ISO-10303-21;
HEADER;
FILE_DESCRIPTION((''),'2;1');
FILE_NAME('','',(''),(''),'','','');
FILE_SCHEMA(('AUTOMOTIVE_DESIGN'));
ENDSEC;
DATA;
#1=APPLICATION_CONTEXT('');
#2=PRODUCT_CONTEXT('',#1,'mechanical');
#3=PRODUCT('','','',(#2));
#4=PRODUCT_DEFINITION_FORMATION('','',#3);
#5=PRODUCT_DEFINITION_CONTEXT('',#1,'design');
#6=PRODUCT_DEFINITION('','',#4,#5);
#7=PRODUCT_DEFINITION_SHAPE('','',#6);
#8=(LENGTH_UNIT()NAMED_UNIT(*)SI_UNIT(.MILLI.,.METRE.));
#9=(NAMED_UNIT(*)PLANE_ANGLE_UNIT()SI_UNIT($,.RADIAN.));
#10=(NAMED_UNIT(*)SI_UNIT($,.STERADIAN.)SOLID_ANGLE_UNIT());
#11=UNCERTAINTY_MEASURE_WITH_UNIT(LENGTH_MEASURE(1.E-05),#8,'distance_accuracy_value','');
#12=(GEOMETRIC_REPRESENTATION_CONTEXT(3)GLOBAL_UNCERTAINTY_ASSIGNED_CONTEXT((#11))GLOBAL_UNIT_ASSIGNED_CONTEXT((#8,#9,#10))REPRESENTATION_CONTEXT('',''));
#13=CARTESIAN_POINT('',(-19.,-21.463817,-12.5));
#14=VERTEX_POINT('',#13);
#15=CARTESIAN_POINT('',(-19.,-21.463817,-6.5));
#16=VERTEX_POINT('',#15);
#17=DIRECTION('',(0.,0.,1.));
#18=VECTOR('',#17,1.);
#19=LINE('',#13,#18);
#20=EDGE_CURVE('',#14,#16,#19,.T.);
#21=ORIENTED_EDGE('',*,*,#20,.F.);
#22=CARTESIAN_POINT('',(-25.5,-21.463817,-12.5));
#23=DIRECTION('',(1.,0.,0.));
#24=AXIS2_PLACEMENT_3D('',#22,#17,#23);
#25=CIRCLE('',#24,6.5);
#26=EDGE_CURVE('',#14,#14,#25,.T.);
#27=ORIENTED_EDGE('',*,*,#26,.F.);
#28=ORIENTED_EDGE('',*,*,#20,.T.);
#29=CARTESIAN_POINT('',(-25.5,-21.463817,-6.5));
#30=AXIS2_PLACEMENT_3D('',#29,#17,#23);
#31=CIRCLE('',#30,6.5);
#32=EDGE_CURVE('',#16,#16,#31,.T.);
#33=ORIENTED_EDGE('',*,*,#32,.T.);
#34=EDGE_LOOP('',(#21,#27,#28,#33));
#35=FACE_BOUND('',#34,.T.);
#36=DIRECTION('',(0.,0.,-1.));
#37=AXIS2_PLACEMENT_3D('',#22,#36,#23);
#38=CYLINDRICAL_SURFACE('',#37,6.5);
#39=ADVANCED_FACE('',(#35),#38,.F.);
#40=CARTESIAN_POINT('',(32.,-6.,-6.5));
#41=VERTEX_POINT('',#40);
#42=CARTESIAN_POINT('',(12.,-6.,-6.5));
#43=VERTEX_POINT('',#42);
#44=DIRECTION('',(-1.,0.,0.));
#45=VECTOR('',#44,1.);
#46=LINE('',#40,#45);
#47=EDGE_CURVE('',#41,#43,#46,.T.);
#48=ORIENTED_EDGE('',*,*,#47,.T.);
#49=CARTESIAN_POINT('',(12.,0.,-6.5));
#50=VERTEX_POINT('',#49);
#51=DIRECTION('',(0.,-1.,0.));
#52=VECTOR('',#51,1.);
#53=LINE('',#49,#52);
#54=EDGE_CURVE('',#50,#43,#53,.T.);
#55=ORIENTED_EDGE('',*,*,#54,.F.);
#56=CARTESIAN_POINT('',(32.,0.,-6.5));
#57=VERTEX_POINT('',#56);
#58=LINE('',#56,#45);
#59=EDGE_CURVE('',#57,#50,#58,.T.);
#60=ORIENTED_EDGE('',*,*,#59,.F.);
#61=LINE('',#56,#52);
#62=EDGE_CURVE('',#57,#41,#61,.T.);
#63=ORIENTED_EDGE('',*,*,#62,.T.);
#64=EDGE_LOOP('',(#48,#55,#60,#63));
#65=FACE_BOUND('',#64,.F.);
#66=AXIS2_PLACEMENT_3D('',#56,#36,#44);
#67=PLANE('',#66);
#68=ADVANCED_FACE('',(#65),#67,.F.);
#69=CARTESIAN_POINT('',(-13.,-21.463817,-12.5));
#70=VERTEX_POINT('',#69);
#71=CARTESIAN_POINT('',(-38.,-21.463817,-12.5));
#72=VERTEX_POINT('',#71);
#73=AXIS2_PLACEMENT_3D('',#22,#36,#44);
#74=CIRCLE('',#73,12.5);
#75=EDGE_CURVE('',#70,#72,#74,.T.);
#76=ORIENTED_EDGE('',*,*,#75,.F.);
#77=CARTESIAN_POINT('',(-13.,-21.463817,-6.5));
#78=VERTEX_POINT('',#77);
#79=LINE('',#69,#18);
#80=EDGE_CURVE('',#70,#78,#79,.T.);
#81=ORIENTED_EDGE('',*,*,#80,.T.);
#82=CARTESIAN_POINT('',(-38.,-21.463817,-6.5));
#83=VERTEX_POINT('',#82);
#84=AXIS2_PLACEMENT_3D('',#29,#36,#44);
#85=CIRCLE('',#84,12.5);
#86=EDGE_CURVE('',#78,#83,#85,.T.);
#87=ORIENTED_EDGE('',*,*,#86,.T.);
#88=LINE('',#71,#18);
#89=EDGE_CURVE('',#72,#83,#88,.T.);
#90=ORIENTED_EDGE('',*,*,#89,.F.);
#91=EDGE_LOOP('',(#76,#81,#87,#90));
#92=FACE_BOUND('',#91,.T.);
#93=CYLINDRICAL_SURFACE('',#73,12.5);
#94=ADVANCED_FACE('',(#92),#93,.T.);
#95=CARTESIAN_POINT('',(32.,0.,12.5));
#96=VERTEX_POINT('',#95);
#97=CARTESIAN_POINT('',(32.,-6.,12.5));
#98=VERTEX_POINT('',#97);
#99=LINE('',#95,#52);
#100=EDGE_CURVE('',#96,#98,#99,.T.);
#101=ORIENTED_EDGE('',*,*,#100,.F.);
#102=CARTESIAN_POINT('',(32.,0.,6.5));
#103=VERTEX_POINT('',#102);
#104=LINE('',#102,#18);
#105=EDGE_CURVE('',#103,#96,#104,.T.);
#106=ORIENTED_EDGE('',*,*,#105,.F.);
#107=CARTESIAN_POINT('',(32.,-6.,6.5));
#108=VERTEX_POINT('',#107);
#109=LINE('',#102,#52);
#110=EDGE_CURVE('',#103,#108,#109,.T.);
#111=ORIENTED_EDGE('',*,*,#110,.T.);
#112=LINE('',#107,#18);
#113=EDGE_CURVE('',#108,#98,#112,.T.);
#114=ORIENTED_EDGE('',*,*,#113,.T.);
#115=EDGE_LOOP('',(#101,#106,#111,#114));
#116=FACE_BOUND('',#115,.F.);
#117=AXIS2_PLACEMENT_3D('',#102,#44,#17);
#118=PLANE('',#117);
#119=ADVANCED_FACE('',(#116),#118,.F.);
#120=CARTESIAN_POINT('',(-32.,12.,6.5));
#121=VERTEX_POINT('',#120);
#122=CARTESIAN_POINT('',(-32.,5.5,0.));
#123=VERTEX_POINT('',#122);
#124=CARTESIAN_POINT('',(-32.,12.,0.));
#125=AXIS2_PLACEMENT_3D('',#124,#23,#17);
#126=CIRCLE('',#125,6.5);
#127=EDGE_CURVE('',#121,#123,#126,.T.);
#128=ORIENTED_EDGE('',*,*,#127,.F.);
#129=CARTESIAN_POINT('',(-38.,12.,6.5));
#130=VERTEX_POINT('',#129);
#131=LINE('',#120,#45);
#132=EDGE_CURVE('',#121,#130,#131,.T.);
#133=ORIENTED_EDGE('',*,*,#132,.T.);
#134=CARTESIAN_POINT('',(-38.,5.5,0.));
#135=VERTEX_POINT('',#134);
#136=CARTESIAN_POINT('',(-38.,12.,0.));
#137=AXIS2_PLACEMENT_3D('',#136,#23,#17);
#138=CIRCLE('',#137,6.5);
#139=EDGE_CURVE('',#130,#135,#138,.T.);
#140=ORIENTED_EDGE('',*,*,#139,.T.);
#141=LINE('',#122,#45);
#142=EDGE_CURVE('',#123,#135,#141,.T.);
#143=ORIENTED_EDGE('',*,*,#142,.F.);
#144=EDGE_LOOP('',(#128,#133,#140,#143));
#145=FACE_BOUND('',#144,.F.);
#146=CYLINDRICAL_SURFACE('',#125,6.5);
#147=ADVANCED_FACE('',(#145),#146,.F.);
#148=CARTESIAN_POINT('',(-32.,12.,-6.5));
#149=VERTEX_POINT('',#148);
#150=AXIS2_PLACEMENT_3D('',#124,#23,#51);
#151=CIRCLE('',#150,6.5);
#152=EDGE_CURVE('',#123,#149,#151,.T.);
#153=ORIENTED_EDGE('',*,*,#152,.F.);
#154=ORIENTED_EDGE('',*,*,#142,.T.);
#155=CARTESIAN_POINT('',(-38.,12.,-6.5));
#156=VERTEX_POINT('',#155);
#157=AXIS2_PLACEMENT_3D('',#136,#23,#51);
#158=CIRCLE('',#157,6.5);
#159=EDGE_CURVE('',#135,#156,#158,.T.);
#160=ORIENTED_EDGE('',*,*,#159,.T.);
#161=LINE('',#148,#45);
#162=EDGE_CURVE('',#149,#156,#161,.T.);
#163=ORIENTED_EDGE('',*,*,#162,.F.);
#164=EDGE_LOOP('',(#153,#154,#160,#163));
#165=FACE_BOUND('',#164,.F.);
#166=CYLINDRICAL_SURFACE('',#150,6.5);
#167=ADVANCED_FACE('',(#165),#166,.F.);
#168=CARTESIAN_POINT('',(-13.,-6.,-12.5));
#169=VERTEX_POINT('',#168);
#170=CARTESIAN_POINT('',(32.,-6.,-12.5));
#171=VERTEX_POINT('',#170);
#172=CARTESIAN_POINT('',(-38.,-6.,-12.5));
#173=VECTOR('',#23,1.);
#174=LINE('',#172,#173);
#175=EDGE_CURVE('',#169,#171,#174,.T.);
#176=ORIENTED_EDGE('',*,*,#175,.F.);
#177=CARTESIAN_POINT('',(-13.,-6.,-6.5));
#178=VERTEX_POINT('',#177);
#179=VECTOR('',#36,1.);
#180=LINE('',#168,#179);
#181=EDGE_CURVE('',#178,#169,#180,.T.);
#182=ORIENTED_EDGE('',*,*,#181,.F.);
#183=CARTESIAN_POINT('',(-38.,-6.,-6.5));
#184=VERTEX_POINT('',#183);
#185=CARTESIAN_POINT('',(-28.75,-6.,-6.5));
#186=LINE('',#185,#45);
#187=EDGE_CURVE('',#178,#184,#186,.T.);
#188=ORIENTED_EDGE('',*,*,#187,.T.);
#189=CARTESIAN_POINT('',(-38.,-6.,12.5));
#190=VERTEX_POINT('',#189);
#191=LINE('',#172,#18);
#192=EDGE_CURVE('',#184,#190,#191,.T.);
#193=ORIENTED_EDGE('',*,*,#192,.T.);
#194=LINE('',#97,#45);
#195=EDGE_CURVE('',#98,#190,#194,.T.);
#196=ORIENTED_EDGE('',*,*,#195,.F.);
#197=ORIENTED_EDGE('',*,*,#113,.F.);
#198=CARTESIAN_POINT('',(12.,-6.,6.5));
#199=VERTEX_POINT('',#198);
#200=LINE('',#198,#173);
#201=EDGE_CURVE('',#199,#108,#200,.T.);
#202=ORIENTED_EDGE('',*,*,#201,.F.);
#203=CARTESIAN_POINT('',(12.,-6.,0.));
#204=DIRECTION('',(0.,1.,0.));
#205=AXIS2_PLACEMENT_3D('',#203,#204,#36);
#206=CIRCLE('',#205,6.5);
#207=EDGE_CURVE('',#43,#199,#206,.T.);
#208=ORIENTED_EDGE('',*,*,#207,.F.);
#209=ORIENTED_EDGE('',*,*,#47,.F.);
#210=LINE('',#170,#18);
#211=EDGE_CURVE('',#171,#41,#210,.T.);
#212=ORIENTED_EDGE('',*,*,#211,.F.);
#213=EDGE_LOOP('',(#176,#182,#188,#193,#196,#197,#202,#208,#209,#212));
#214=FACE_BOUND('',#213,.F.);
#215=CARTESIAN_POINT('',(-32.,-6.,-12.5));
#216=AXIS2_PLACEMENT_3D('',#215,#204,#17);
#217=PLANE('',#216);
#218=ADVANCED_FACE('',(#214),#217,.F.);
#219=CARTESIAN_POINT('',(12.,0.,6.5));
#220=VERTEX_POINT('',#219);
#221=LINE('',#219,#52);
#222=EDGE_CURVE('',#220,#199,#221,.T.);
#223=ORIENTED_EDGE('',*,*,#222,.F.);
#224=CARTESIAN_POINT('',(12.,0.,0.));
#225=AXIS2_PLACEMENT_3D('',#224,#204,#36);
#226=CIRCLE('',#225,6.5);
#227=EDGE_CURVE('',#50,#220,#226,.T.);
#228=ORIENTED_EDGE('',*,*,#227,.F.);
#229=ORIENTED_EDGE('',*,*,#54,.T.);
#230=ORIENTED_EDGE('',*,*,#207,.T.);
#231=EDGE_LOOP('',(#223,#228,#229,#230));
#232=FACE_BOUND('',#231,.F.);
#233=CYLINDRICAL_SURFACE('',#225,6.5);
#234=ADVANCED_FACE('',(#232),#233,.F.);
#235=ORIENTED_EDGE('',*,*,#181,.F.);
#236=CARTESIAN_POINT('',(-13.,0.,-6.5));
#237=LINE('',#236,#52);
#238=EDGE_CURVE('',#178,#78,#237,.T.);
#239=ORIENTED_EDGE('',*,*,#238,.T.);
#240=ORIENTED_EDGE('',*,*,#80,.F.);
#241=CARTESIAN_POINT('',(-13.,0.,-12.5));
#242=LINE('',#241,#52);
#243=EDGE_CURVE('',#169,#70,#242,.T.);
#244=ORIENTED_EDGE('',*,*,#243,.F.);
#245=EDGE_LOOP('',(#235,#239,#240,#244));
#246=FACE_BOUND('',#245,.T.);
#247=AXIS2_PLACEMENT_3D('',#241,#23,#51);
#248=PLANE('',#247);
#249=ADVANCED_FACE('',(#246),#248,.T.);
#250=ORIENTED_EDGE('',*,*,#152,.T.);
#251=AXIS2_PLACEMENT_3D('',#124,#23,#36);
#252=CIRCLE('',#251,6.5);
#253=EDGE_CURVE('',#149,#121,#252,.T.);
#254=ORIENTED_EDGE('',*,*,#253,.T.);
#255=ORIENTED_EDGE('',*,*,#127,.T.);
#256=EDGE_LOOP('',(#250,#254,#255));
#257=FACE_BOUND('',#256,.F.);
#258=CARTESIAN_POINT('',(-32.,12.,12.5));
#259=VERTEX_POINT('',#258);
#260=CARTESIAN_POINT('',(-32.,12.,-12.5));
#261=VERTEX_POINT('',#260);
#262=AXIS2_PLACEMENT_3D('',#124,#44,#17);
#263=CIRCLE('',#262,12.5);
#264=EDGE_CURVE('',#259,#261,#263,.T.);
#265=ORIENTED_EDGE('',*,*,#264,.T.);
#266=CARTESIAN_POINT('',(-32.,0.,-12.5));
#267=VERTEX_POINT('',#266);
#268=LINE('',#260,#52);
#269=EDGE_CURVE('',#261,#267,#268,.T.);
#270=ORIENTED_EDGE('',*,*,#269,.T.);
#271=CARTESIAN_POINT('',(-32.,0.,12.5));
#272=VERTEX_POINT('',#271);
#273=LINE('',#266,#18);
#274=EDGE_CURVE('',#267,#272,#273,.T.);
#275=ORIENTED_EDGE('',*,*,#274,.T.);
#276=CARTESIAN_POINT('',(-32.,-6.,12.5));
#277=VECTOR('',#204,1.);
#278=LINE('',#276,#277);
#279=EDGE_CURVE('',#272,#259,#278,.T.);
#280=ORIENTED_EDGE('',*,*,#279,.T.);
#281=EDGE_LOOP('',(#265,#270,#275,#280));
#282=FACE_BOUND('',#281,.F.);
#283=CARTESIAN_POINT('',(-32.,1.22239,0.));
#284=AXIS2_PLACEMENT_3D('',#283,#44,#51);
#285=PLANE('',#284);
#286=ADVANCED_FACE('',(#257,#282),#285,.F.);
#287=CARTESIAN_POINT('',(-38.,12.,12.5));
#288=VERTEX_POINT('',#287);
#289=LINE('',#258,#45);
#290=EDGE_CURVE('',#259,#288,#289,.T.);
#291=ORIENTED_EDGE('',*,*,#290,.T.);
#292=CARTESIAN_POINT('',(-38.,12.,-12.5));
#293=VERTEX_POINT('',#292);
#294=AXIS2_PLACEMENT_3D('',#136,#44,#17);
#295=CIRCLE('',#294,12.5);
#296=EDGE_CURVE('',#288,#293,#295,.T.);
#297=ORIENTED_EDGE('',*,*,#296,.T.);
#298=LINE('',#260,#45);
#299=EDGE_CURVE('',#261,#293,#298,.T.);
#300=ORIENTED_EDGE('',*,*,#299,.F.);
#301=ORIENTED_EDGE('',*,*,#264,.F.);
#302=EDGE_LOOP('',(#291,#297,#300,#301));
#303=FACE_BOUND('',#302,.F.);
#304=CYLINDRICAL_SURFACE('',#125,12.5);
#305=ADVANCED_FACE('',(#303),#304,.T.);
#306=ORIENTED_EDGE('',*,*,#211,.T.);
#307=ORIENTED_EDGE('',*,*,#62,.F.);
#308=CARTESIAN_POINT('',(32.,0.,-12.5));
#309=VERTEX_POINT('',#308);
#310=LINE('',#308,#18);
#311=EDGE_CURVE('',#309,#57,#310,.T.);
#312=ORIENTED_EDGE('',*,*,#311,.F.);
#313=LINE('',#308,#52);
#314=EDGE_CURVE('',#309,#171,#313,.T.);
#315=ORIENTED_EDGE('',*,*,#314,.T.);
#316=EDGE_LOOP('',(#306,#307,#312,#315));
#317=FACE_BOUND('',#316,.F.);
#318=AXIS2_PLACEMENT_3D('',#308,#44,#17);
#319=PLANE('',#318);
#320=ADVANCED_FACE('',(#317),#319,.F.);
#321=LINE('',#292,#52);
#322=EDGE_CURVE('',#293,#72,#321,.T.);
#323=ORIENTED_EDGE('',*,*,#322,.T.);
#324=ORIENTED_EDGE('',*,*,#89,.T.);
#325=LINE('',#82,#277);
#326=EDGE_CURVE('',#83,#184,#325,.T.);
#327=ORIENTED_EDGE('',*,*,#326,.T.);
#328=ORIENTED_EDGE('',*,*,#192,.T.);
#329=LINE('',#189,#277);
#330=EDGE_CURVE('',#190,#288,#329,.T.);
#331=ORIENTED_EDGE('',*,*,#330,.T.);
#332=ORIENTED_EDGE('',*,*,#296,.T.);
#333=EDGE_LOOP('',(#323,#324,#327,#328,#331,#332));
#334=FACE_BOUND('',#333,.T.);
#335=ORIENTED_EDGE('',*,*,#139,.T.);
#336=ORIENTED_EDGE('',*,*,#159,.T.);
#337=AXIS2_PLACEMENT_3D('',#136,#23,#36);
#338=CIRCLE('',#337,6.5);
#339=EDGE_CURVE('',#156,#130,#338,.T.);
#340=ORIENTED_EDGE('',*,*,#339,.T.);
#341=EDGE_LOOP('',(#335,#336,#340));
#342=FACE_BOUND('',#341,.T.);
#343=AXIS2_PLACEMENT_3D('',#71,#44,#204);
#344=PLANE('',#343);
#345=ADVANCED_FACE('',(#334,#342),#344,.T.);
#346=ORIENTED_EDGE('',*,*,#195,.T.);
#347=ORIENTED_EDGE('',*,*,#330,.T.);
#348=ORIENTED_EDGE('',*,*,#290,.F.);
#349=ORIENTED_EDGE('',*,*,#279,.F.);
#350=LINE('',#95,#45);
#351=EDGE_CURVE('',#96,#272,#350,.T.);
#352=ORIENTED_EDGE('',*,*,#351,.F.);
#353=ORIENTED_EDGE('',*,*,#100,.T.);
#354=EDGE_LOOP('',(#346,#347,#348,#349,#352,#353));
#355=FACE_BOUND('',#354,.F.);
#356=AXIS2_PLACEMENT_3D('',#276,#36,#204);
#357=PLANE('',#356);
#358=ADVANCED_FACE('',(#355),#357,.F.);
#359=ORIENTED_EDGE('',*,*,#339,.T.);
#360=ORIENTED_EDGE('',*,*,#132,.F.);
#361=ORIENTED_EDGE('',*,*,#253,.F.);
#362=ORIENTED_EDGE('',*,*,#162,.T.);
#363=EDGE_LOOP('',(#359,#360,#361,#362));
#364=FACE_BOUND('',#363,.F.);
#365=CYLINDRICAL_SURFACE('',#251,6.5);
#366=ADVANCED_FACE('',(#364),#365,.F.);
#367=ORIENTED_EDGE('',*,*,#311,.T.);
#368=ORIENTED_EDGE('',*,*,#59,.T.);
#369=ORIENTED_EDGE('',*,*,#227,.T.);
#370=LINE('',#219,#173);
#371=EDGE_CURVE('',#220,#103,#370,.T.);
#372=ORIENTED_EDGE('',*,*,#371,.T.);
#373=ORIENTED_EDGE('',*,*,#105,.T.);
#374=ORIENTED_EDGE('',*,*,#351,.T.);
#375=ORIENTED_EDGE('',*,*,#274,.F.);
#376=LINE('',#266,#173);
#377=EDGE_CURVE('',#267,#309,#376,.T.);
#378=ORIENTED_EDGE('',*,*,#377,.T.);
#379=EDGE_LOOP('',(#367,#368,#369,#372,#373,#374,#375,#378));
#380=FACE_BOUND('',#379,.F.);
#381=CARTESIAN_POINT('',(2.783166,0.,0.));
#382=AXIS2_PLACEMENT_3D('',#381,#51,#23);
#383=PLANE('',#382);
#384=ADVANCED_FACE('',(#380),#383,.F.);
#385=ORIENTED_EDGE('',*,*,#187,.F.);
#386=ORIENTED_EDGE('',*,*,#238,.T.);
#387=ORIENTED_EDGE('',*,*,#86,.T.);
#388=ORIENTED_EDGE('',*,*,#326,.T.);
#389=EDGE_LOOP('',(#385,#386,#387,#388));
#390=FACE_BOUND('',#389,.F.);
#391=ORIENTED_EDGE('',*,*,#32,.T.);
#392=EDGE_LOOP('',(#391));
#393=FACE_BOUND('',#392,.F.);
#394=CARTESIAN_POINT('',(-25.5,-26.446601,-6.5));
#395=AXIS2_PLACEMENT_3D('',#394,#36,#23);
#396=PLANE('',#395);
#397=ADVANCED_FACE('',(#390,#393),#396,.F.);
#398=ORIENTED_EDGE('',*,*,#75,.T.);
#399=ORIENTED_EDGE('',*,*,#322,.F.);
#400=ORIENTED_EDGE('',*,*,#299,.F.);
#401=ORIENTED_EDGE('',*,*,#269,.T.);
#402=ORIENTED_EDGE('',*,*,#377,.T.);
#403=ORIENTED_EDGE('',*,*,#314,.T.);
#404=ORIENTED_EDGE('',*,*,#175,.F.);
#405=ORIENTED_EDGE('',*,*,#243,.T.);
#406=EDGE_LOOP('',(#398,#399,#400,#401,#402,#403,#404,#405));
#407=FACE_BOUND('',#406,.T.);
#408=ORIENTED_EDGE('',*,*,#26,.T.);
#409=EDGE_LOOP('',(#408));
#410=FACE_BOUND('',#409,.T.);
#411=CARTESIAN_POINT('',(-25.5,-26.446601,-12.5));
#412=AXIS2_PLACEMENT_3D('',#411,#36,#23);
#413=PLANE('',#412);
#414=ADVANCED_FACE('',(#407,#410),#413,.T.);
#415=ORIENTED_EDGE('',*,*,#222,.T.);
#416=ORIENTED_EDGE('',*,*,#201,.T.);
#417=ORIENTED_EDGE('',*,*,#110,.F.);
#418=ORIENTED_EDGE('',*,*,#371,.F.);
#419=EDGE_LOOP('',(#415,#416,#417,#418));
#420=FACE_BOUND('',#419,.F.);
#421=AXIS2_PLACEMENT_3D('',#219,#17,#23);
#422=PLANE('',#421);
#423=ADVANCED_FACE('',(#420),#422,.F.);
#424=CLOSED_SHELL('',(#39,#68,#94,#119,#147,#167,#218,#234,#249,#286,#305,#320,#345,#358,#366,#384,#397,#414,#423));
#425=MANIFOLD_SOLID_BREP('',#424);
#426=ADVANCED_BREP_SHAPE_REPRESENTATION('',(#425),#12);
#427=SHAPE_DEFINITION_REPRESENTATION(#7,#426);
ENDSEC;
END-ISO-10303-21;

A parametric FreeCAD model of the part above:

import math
import FreeCAD as App
import Part
import Sketcher

V = App.Vector
Q = App.Units.Quantity

doc = App.newDocument("Part")
body = doc.addObject("PartDesign::Body", "Body")

sketch1 = doc.addObject("Sketcher::SketchObject", "Sketch")
body.addObject(sketch1)
sketch1.AttachmentSupport = (doc.XZ_Plane, [""])
sketch1.MapMode = "FlatFace"
sketch1.addGeometry(Part.LineSegment(V(32, 12, 0), V(-32, 12, 0)), False)
sketch1.addGeometry(Part.LineSegment(V(-32, 12, 0), V(-32, -12, 0)), False)
sketch1.addGeometry(Part.LineSegment(V(-32, -12, 0), V(32, -12, 0)), False)
sketch1.addGeometry(Part.LineSegment(V(32, -12, 0), V(32, -6, 0)), False)
sketch1.addGeometry(Part.LineSegment(V(32, -6, 0), V(12, -6, 0)), False)
sketch1.addGeometry(Part.ArcOfCircle(Part.Circle(V(12, 0, 0), V(0, 0, 1), 6), math.radians(90), math.radians(270)), False)
sketch1.addGeometry(Part.LineSegment(V(12, 6, 0), V(32, 6, 0)), False)
sketch1.addGeometry(Part.LineSegment(V(32, 6, 0), V(32, 12, 0)), False)
sketch1.addConstraint(Sketcher.Constraint("Coincident", 0, 2, 1, 1))
sketch1.addConstraint(Sketcher.Constraint("Coincident", 1, 2, 2, 1))
sketch1.addConstraint(Sketcher.Constraint("Coincident", 2, 2, 3, 1))
sketch1.addConstraint(Sketcher.Constraint("Coincident", 3, 2, 4, 1))
sketch1.addConstraint(Sketcher.Constraint("Tangent", 4, 2, 5, 2))
sketch1.addConstraint(Sketcher.Constraint("Tangent", 5, 1, 6, 1))
sketch1.addConstraint(Sketcher.Constraint("Coincident", 6, 2, 7, 1))
sketch1.addConstraint(Sketcher.Constraint("Coincident", 7, 2, 0, 1))
sketch1.addConstraint(Sketcher.Constraint("Horizontal", 0))
sketch1.addConstraint(Sketcher.Constraint("Vertical", 1))
sketch1.addConstraint(Sketcher.Constraint("Horizontal", 2))
sketch1.addConstraint(Sketcher.Constraint("Vertical", 3))
sketch1.addConstraint(Sketcher.Constraint("Horizontal", 4))
sketch1.addConstraint(Sketcher.Constraint("Horizontal", 6))
sketch1.addConstraint(Sketcher.Constraint("Vertical", 7))
sketch1.addConstraint(Sketcher.Constraint("Symmetric", 0, 2, 2, 2, -1, 1))
sketch1.addConstraint(Sketcher.Constraint("Symmetric", 3, 2, 6, 2, -1))
sketch1.addConstraint(Sketcher.Constraint("Radius", 5, Q("6.5 mm")))
sketch1.addConstraint(Sketcher.Constraint("DistanceX", 0, 2, 0, 1, Q("64 mm")))
sketch1.addConstraint(Sketcher.Constraint("DistanceX", 4, 2, 4, 1, Q("20 mm")))
sketch1.addConstraint(Sketcher.Constraint("DistanceY", 1, 2, 1, 1, Q("25 mm")))
pad1 = doc.addObject("PartDesign::Pad", "Pad")
body.addObject(pad1)
pad1.Profile = sketch1
pad1.Length = 6

sketch2 = doc.addObject("Sketcher::SketchObject", "Sketch001")
body.addObject(sketch2)
sketch2.AttachmentSupport = (doc.YZ_Plane, [""])
sketch2.MapMode = "FlatFace"
sketch2.AttachmentOffset = App.Placement(V(0, 0, -32), App.Rotation())
sketch2.addGeometry(Part.LineSegment(V(-6, -12, 0), V(-6, 12, 0)), False)
sketch2.addGeometry(Part.LineSegment(V(-6, 12, 0), V(12, 12, 0)), False)
sketch2.addGeometry(Part.ArcOfCircle(Part.Circle(V(12, 0, 0), V(0, 0, 1), 12), math.radians(-90), math.radians(90)), False)
sketch2.addGeometry(Part.LineSegment(V(12, -12, 0), V(-6, -12, 0)), False)
sketch2.addGeometry(Part.ArcOfCircle(Part.Circle(V(12, 0, 0), V(0, 0, 1), 6), math.radians(90), math.radians(180)), False)
sketch2.addGeometry(Part.ArcOfCircle(Part.Circle(V(12, 0, 0), V(0, 0, 1), 6), math.radians(180), math.radians(270)), False)
sketch2.addGeometry(Part.ArcOfCircle(Part.Circle(V(12, 0, 0), V(0, 0, 1), 6), math.radians(-90), math.radians(90)), False)
sketch2.addConstraint(Sketcher.Constraint("Coincident", 0, 2, 1, 1))
sketch2.addConstraint(Sketcher.Constraint("Tangent", 1, 2, 2, 2))
sketch2.addConstraint(Sketcher.Constraint("Tangent", 2, 1, 3, 1))
sketch2.addConstraint(Sketcher.Constraint("Coincident", 3, 2, 0, 1))
sketch2.addConstraint(Sketcher.Constraint("Tangent", 4, 2, 5, 1))
sketch2.addConstraint(Sketcher.Constraint("Tangent", 5, 2, 6, 1))
sketch2.addConstraint(Sketcher.Constraint("Tangent", 6, 2, 4, 1))
sketch2.addConstraint(Sketcher.Constraint("Vertical", 0))
sketch2.addConstraint(Sketcher.Constraint("Horizontal", 1))
sketch2.addConstraint(Sketcher.Constraint("Horizontal", 3))
sketch2.addConstraint(Sketcher.Constraint("Coincident", 4, 3, 2, 3))
sketch2.addConstraint(Sketcher.Constraint("Symmetric", 5, 2, 6, 2, -1))
sketch2.addConstraint(Sketcher.Constraint("PointOnObject", 4, 2, -1))
sketch2.addConstraint(Sketcher.Constraint("Vertical", 2, 1, 5, 2))
sketch2.addConstraint(Sketcher.Constraint("Radius", 2, Q("12.5 mm")))
sketch2.addConstraint(Sketcher.Constraint("Radius", 4, Q("6.5 mm")))
sketch2.addConstraint(Sketcher.Constraint("DistanceX", 1, 1, 1, 2, Q("18 mm")))
sketch2.addConstraint(Sketcher.Constraint("DistanceX", -1, 1, 2, 3, Q("12 mm")))
pad2 = doc.addObject("PartDesign::Pad", "Pad001")
body.addObject(pad2)
pad2.Profile = sketch2
pad2.Length = 6
pad2.Reversed = True

sketch3 = doc.addObject("Sketcher::SketchObject", "Sketch002")
body.addObject(sketch3)
sketch3.AttachmentSupport = (doc.XY_Plane, [""])
sketch3.MapMode = "FlatFace"
sketch3.AttachmentOffset = App.Placement(V(0, 0, -12.5), App.Rotation())
sketch3.addGeometry(Part.ArcOfCircle(Part.Circle(V(-26, -21, 0), V(0, 0, 1), 12), math.radians(-180), math.radians(0)), False)
sketch3.addGeometry(Part.LineSegment(V(-38, -21, 0), V(-38, 0, 0)), False)
sketch3.addGeometry(Part.LineSegment(V(-38, 0, 0), V(-13, 0, 0)), False)
sketch3.addGeometry(Part.LineSegment(V(-13, 0, 0), V(-13, -21, 0)), False)
sketch3.addGeometry(Part.Circle(V(-26, -21, 0), V(0, 0, 1), 6), False)
sketch3.addConstraint(Sketcher.Constraint("Tangent", 0, 1, 1, 1))
sketch3.addConstraint(Sketcher.Constraint("Coincident", 1, 2, 2, 1))
sketch3.addConstraint(Sketcher.Constraint("Coincident", 2, 2, 3, 1))
sketch3.addConstraint(Sketcher.Constraint("Tangent", 3, 2, 0, 2))
sketch3.addConstraint(Sketcher.Constraint("Vertical", 1))
sketch3.addConstraint(Sketcher.Constraint("Horizontal", 2))
sketch3.addConstraint(Sketcher.Constraint("Vertical", 3))
sketch3.addConstraint(Sketcher.Constraint("Coincident", 4, 3, 0, 3))
sketch3.addConstraint(Sketcher.Constraint("PointOnObject", 1, 2, -1))
sketch3.addConstraint(Sketcher.Constraint("Diameter", 4, Q("13 mm")))
sketch3.addConstraint(Sketcher.Constraint("Radius", 0, Q("12.5 mm")))
sketch3.addConstraint(Sketcher.Constraint("DistanceX", 0, 1, -1, 1, Q("38 mm")))
sketch3.addConstraint(Sketcher.Constraint("DistanceY", 1, 1, 1, 2, Q("21.463817 mm")))
pad3 = doc.addObject("PartDesign::Pad", "Pad002")
body.addObject(pad3)
pad3.Profile = sketch3
pad3.Length = 6

doc.recompute()
